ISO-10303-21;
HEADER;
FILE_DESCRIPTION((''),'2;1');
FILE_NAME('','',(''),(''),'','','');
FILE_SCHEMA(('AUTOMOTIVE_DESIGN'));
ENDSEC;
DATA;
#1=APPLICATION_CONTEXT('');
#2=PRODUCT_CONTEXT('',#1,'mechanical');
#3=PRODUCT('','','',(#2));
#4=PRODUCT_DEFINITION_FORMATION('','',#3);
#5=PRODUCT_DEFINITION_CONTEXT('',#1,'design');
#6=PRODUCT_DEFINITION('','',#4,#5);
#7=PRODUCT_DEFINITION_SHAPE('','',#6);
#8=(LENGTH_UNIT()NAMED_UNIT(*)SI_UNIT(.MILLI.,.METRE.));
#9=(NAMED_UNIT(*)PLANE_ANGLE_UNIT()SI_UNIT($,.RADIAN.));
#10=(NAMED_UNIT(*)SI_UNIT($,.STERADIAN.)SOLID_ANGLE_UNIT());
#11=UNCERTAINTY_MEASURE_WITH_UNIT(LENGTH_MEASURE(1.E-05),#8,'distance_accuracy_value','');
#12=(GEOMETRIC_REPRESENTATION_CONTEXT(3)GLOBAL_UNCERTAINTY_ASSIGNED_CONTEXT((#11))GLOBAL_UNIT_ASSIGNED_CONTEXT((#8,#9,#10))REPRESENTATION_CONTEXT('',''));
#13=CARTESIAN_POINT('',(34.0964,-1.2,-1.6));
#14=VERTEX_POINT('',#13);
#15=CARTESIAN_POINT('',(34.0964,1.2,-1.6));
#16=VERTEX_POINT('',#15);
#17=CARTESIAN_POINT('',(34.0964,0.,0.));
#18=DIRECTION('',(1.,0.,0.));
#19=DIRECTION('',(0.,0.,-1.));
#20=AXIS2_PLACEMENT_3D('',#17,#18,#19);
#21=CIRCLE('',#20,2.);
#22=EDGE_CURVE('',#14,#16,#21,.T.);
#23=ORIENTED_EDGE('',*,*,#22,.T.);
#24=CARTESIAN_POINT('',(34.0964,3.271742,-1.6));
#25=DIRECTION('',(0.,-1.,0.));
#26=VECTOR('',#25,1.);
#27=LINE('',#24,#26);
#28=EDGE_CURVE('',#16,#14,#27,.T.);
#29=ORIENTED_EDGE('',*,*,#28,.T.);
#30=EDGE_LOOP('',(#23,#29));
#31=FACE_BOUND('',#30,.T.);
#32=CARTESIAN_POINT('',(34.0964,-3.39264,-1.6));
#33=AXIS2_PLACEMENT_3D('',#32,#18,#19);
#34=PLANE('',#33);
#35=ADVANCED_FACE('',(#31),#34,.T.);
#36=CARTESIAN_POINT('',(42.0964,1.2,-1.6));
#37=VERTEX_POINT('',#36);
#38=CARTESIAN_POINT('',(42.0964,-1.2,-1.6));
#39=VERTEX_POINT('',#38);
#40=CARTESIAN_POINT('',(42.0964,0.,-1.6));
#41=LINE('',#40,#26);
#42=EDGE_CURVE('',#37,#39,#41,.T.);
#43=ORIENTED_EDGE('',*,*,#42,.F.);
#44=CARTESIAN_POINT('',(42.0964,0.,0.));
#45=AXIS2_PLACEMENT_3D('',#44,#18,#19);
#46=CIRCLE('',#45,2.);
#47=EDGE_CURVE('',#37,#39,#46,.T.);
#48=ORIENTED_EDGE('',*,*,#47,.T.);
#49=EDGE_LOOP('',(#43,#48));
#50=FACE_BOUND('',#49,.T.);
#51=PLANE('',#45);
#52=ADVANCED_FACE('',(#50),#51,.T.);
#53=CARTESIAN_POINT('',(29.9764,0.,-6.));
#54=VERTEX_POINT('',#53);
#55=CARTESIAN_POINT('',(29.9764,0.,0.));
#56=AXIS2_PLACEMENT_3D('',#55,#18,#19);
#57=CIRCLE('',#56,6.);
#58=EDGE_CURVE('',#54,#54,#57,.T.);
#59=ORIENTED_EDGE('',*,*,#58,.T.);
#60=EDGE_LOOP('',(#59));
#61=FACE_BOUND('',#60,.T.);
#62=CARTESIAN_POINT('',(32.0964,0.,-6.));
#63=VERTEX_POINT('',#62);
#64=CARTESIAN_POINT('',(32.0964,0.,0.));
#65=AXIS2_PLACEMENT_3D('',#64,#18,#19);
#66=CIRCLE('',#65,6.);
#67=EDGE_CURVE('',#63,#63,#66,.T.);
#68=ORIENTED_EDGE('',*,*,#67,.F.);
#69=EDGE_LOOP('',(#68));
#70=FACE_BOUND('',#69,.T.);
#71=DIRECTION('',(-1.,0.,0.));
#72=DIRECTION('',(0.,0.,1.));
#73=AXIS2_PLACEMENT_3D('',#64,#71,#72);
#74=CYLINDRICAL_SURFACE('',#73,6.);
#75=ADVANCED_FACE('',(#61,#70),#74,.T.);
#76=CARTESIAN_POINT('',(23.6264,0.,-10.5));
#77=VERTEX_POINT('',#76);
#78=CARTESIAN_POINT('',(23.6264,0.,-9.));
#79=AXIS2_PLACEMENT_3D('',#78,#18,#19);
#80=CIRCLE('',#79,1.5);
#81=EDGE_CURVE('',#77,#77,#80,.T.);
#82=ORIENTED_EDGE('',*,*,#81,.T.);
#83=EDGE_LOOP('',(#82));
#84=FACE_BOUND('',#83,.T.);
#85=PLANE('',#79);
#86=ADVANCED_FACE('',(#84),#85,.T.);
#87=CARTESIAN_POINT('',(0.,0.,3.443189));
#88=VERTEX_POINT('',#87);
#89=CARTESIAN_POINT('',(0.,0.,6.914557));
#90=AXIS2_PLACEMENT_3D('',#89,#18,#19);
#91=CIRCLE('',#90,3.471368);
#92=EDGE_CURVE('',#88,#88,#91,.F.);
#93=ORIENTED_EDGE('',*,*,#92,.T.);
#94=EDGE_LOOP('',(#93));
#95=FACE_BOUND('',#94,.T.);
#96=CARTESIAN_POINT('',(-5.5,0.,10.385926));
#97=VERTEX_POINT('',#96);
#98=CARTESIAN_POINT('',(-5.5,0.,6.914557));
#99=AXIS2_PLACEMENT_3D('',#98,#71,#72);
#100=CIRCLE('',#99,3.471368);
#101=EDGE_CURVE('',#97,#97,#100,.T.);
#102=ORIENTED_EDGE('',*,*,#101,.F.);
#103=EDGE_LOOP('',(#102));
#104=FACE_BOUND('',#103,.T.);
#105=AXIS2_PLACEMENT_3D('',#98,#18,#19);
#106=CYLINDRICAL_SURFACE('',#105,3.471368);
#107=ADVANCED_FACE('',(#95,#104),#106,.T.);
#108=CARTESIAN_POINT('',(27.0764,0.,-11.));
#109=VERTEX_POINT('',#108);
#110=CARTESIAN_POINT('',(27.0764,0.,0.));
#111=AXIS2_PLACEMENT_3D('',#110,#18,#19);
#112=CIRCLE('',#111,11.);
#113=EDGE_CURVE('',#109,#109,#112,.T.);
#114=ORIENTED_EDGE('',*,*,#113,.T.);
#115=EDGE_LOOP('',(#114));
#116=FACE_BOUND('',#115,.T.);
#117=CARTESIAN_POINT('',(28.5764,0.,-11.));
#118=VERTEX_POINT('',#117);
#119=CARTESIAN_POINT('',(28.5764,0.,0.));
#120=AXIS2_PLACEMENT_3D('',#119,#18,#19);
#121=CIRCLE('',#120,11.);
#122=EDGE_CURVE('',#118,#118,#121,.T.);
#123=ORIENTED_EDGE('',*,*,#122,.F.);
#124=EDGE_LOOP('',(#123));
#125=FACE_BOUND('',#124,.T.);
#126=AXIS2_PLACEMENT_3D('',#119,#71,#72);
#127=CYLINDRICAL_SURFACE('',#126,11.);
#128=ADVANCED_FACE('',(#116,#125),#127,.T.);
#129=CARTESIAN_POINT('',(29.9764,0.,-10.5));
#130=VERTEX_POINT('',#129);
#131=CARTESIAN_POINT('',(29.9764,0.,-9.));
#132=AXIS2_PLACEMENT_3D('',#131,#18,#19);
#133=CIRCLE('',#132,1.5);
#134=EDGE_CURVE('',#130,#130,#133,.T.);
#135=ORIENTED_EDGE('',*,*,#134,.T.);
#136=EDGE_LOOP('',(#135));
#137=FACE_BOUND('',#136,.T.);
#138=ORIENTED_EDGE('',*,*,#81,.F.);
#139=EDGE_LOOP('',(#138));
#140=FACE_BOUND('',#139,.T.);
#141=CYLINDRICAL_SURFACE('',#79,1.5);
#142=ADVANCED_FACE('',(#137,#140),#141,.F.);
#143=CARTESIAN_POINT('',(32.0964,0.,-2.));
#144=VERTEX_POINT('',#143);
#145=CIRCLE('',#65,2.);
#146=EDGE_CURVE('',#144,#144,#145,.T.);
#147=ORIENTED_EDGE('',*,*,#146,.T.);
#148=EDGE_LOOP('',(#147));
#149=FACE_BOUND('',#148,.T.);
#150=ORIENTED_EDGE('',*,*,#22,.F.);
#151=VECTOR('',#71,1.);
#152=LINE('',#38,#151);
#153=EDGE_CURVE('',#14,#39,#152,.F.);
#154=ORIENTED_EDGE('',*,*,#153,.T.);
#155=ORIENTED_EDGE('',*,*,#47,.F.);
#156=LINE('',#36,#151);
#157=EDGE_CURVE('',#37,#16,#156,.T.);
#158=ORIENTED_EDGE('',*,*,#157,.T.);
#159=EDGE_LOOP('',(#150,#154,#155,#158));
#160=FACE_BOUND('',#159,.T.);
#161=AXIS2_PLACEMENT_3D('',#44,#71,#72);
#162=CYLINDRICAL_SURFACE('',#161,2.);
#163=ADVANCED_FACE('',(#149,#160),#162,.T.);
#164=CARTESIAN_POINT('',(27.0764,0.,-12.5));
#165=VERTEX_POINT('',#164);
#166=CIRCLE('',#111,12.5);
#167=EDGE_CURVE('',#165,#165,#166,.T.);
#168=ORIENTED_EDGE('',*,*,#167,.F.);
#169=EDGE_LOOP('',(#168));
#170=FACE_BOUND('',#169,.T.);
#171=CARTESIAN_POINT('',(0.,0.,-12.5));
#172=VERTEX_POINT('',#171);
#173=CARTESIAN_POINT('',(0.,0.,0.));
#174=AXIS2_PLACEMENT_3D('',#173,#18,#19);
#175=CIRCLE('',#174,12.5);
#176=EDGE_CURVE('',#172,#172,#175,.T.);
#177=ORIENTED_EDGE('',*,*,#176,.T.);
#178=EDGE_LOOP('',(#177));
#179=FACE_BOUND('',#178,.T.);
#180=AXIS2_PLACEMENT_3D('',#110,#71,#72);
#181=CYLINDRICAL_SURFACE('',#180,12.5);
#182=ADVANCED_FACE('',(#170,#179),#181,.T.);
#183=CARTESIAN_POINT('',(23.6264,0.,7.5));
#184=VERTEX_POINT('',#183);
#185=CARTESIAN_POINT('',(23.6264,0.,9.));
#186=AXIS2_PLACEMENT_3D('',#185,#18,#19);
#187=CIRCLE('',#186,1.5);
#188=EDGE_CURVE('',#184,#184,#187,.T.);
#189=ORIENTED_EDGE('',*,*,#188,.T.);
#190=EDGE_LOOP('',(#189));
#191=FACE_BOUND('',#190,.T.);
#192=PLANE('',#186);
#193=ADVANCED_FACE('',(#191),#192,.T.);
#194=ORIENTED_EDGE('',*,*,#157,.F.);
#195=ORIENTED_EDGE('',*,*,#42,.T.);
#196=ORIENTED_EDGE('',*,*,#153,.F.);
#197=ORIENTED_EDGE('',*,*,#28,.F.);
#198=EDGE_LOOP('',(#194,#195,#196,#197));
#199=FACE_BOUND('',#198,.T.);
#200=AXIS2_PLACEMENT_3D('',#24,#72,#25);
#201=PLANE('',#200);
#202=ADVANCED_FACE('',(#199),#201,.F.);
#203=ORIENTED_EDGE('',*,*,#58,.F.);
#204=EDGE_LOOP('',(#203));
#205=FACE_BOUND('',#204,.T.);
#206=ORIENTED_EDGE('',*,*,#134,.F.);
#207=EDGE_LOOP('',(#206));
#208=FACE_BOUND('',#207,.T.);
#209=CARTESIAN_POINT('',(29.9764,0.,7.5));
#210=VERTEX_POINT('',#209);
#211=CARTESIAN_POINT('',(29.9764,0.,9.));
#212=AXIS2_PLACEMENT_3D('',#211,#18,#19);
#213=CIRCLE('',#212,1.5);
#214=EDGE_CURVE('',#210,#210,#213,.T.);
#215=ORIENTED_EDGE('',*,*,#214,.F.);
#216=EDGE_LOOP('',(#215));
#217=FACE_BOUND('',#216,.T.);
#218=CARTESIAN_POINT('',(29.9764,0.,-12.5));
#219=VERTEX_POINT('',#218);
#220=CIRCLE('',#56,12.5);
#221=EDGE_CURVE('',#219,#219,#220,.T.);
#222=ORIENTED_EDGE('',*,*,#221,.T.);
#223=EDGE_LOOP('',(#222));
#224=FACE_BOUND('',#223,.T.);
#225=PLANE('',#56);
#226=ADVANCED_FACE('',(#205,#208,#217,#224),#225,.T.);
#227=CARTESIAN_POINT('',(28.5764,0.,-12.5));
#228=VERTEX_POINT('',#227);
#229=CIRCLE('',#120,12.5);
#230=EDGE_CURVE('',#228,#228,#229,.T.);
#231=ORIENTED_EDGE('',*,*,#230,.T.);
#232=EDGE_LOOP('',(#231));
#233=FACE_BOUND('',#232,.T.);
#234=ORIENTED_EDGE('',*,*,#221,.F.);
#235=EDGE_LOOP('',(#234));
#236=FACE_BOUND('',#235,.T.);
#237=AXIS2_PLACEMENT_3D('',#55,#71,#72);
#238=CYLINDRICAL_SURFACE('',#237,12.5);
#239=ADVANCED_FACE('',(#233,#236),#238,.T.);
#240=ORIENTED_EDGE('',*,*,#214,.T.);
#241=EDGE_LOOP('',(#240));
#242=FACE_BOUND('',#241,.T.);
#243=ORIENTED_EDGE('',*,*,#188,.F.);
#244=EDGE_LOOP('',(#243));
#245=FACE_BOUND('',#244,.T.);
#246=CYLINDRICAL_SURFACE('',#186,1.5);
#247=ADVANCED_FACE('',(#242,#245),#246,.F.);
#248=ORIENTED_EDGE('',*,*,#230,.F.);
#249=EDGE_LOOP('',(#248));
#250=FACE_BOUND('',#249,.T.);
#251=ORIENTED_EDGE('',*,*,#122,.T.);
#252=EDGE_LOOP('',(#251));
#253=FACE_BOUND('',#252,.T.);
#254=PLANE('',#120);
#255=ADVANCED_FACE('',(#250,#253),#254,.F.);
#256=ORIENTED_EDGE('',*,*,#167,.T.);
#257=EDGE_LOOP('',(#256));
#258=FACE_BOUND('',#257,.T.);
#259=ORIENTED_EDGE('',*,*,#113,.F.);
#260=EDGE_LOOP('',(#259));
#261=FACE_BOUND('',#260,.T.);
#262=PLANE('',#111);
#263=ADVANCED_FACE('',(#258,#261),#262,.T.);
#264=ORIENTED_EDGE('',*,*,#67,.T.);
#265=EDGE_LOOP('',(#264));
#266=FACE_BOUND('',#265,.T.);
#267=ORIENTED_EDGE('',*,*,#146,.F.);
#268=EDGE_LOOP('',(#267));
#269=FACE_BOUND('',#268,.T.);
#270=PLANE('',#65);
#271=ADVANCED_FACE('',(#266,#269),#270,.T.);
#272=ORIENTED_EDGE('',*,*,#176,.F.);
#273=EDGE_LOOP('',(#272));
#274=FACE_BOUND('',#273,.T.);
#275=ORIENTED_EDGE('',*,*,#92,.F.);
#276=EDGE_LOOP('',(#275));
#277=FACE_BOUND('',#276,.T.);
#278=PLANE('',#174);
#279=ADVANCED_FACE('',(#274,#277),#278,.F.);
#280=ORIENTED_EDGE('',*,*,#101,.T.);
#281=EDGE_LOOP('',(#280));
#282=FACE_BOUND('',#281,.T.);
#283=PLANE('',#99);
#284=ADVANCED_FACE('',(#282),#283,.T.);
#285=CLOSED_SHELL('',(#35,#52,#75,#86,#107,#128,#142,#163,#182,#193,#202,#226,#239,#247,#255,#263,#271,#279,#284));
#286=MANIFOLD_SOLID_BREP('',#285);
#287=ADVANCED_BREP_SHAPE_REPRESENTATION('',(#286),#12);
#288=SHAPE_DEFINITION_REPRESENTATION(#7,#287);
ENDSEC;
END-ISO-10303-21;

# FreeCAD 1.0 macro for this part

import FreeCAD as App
import Part
import Sketcher

V = App.Vector
Q = App.Units.Quantity


def add_polygon(sketch, points):
    """Adds a closed chain of lines whose ends are joined by coincident constraints."""
    first, n = sketch.GeometryCount, len(points)
    for a, b in zip(points, points[1:] + points[:1]):
        sketch.addGeometry(Part.LineSegment(App.Vector(*a, 0), App.Vector(*b, 0)), False)
    for i in range(n):
        sketch.addConstraint(Sketcher.Constraint("Coincident", first + i, 2, first + (i + 1) % n, 1))

doc = App.newDocument("Part")
body = doc.addObject("PartDesign::Body", "Body")

# Sketch on YZ plane
sketch1 = body.newObject("Sketcher::SketchObject", "Sketch")
sketch1.AttachmentSupport = (doc.getObject("YZ_Plane"), [""])
sketch1.MapMode = "FlatFace"
sketch1.addGeometry(Part.Circle(V(0, 0, 0), V(0, 0, 1), 12.5), False)
sketch1.addConstraint([
    Sketcher.Constraint("Coincident", 0, 3, -1, 1),
    Sketcher.Constraint("Diameter", 0, Q("25 mm")),
])
pad1 = body.newObject("PartDesign::Pad", "Pad")
pad1.Profile = sketch1
pad1.Length = 27.0764

# Sketch on YZ plane
sketch2 = body.newObject("Sketcher::SketchObject", "Sketch001")
sketch2.AttachmentSupport = (doc.getObject("YZ_Plane"), [""])
sketch2.MapMode = "FlatFace"
sketch2.AttachmentOffset = App.Placement(V(0, 0, 27.0764), App.Rotation())
sketch2.addGeometry(Part.Circle(V(0, 0, 0), V(0, 0, 1), 11), False)
sketch2.addConstraint([
    Sketcher.Constraint("Coincident", 0, 3, -1, 1),
    Sketcher.Constraint("Diameter", 0, Q("22 mm")),
])
pad2 = body.newObject("PartDesign::Pad", "Pad001")
pad2.Profile = sketch2
pad2.Length = 1.5

# Sketch on YZ plane
sketch3 = body.newObject("Sketcher::SketchObject", "Sketch002")
sketch3.AttachmentSupport = (doc.getObject("YZ_Plane"), [""])
sketch3.MapMode = "FlatFace"
sketch3.AttachmentOffset = App.Placement(V(0, 0, 28.5764), App.Rotation())
sketch3.addGeometry(Part.Circle(V(0, 0, 0), V(0, 0, 1), 12.5), False)
sketch3.addConstraint([
    Sketcher.Constraint("Coincident", 0, 3, -1, 1),
    Sketcher.Constraint("Diameter", 0, Q("25 mm")),
])
pad3 = body.newObject("PartDesign::Pad", "Pad002")
pad3.Profile = sketch3
pad3.Length = 1.4

# Sketch on YZ plane
sketch4 = body.newObject("Sketcher::SketchObject", "Sketch003")
sketch4.AttachmentSupport = (doc.getObject("YZ_Plane"), [""])
sketch4.MapMode = "FlatFace"
sketch4.AttachmentOffset = App.Placement(V(0, 0, 29.9764), App.Rotation())
sketch4.addGeometry(Part.Circle(V(0, 0, 0), V(0, 0, 1), 6), False)
sketch4.addConstraint([
    Sketcher.Constraint("Coincident", 0, 3, -1, 1),
    Sketcher.Constraint("Diameter", 0, Q("12 mm")),
])
pad4 = body.newObject("PartDesign::Pad", "Pad003")
pad4.Profile = sketch4
pad4.Length = 2.12

# Sketch on YZ plane
sketch5 = body.newObject("Sketcher::SketchObject", "Sketch004")
sketch5.AttachmentSupport = (doc.getObject("YZ_Plane"), [""])
sketch5.MapMode = "FlatFace"
sketch5.AttachmentOffset = App.Placement(V(0, 0, 32.0964), App.Rotation())
sketch5.addGeometry(Part.Circle(V(0, 0, 0), V(0, 0, 1), 2), False)
sketch5.addConstraint([
    Sketcher.Constraint("Coincident", 0, 3, -1, 1),
    Sketcher.Constraint("Diameter", 0, Q("4 mm")),
])
pad5 = body.newObject("PartDesign::Pad", "Pad004")
pad5.Profile = sketch5
pad5.Length = 10

# Sketch on YZ plane
sketch6 = body.newObject("Sketcher::SketchObject", "Sketch005")
sketch6.AttachmentSupport = (doc.getObject("YZ_Plane"), [""])
sketch6.MapMode = "FlatFace"
sketch6.AttachmentOffset = App.Placement(V(0, 0, 42.0964), App.Rotation())
add_polygon(sketch6, [(3.271742, -1.6), (-3.39264, -1.6), (-3.39264, -4.237438), (3.271742, -4.237438)])  # lines 0-3
sketch6.addConstraint([
    Sketcher.Constraint("Horizontal", 0),
    Sketcher.Constraint("Vertical", 1),
    Sketcher.Constraint("Horizontal", 2),
    Sketcher.Constraint("Vertical", 3),
    Sketcher.Constraint("DistanceY", 0, 2, -1, 1, Q("1.6 mm")),
    Sketcher.Constraint("DistanceX", 0, 2, 0, 1, Q("6.664382 mm")),
    Sketcher.Constraint("DistanceY", 1, 2, 1, 1, Q("2.637438 mm")),
    Sketcher.Constraint("DistanceX", 0, 2, -1, 1, Q("3.39264 mm")),
])
pocket1 = body.newObject("PartDesign::Pocket", "Pocket")
pocket1.Profile = sketch6
pocket1.Length = 8

# Sketch on YZ plane
sketch7 = body.newObject("Sketcher::SketchObject", "Sketch006")
sketch7.AttachmentSupport = (doc.getObject("YZ_Plane"), [""])
sketch7.MapMode = "FlatFace"
sketch7.AttachmentOffset = App.Placement(V(0, 0, 29.9764), App.Rotation())
sketch7.addGeometry([
    Part.Circle(V(0, -9, 0), V(0, 0, 1), 1.5),
    Part.Circle(V(0, 9, 0), V(0, 0, 1), 1.5),
], False)
sketch7.addConstraint([
    Sketcher.Constraint("Equal", 0, 1),
    Sketcher.Constraint("Symmetric", 0, 3, 1, 3, -1, 1),
    Sketcher.Constraint("PointOnObject", 0, 3, -2),
    Sketcher.Constraint("Diameter", 0, Q("3 mm")),
    Sketcher.Constraint("DistanceY", 0, 3, -1, 1, Q("9 mm")),
])
pocket2 = body.newObject("PartDesign::Pocket", "Pocket001")
pocket2.Profile = sketch7
pocket2.Length = 6.35

# Sketch on YZ plane
sketch8 = body.newObject("Sketcher::SketchObject", "Sketch007")
sketch8.AttachmentSupport = (doc.getObject("YZ_Plane"), [""])
sketch8.MapMode = "FlatFace"
sketch8.addGeometry(Part.Circle(V(0, 6.914557, 0), V(0, 0, 1), 3.471368), False)
sketch8.addConstraint([
    Sketcher.Constraint("PointOnObject", 0, 3, -2),
    Sketcher.Constraint("Diameter", 0, Q("6.942736 mm")),
    Sketcher.Constraint("DistanceY", -1, 1, 0, 3, Q("6.914557 mm")),
])
pad6 = body.newObject("PartDesign::Pad", "Pad005")
pad6.Profile = sketch8
pad6.Length = 5.5
pad6.Reversed = True

doc.recompute()
